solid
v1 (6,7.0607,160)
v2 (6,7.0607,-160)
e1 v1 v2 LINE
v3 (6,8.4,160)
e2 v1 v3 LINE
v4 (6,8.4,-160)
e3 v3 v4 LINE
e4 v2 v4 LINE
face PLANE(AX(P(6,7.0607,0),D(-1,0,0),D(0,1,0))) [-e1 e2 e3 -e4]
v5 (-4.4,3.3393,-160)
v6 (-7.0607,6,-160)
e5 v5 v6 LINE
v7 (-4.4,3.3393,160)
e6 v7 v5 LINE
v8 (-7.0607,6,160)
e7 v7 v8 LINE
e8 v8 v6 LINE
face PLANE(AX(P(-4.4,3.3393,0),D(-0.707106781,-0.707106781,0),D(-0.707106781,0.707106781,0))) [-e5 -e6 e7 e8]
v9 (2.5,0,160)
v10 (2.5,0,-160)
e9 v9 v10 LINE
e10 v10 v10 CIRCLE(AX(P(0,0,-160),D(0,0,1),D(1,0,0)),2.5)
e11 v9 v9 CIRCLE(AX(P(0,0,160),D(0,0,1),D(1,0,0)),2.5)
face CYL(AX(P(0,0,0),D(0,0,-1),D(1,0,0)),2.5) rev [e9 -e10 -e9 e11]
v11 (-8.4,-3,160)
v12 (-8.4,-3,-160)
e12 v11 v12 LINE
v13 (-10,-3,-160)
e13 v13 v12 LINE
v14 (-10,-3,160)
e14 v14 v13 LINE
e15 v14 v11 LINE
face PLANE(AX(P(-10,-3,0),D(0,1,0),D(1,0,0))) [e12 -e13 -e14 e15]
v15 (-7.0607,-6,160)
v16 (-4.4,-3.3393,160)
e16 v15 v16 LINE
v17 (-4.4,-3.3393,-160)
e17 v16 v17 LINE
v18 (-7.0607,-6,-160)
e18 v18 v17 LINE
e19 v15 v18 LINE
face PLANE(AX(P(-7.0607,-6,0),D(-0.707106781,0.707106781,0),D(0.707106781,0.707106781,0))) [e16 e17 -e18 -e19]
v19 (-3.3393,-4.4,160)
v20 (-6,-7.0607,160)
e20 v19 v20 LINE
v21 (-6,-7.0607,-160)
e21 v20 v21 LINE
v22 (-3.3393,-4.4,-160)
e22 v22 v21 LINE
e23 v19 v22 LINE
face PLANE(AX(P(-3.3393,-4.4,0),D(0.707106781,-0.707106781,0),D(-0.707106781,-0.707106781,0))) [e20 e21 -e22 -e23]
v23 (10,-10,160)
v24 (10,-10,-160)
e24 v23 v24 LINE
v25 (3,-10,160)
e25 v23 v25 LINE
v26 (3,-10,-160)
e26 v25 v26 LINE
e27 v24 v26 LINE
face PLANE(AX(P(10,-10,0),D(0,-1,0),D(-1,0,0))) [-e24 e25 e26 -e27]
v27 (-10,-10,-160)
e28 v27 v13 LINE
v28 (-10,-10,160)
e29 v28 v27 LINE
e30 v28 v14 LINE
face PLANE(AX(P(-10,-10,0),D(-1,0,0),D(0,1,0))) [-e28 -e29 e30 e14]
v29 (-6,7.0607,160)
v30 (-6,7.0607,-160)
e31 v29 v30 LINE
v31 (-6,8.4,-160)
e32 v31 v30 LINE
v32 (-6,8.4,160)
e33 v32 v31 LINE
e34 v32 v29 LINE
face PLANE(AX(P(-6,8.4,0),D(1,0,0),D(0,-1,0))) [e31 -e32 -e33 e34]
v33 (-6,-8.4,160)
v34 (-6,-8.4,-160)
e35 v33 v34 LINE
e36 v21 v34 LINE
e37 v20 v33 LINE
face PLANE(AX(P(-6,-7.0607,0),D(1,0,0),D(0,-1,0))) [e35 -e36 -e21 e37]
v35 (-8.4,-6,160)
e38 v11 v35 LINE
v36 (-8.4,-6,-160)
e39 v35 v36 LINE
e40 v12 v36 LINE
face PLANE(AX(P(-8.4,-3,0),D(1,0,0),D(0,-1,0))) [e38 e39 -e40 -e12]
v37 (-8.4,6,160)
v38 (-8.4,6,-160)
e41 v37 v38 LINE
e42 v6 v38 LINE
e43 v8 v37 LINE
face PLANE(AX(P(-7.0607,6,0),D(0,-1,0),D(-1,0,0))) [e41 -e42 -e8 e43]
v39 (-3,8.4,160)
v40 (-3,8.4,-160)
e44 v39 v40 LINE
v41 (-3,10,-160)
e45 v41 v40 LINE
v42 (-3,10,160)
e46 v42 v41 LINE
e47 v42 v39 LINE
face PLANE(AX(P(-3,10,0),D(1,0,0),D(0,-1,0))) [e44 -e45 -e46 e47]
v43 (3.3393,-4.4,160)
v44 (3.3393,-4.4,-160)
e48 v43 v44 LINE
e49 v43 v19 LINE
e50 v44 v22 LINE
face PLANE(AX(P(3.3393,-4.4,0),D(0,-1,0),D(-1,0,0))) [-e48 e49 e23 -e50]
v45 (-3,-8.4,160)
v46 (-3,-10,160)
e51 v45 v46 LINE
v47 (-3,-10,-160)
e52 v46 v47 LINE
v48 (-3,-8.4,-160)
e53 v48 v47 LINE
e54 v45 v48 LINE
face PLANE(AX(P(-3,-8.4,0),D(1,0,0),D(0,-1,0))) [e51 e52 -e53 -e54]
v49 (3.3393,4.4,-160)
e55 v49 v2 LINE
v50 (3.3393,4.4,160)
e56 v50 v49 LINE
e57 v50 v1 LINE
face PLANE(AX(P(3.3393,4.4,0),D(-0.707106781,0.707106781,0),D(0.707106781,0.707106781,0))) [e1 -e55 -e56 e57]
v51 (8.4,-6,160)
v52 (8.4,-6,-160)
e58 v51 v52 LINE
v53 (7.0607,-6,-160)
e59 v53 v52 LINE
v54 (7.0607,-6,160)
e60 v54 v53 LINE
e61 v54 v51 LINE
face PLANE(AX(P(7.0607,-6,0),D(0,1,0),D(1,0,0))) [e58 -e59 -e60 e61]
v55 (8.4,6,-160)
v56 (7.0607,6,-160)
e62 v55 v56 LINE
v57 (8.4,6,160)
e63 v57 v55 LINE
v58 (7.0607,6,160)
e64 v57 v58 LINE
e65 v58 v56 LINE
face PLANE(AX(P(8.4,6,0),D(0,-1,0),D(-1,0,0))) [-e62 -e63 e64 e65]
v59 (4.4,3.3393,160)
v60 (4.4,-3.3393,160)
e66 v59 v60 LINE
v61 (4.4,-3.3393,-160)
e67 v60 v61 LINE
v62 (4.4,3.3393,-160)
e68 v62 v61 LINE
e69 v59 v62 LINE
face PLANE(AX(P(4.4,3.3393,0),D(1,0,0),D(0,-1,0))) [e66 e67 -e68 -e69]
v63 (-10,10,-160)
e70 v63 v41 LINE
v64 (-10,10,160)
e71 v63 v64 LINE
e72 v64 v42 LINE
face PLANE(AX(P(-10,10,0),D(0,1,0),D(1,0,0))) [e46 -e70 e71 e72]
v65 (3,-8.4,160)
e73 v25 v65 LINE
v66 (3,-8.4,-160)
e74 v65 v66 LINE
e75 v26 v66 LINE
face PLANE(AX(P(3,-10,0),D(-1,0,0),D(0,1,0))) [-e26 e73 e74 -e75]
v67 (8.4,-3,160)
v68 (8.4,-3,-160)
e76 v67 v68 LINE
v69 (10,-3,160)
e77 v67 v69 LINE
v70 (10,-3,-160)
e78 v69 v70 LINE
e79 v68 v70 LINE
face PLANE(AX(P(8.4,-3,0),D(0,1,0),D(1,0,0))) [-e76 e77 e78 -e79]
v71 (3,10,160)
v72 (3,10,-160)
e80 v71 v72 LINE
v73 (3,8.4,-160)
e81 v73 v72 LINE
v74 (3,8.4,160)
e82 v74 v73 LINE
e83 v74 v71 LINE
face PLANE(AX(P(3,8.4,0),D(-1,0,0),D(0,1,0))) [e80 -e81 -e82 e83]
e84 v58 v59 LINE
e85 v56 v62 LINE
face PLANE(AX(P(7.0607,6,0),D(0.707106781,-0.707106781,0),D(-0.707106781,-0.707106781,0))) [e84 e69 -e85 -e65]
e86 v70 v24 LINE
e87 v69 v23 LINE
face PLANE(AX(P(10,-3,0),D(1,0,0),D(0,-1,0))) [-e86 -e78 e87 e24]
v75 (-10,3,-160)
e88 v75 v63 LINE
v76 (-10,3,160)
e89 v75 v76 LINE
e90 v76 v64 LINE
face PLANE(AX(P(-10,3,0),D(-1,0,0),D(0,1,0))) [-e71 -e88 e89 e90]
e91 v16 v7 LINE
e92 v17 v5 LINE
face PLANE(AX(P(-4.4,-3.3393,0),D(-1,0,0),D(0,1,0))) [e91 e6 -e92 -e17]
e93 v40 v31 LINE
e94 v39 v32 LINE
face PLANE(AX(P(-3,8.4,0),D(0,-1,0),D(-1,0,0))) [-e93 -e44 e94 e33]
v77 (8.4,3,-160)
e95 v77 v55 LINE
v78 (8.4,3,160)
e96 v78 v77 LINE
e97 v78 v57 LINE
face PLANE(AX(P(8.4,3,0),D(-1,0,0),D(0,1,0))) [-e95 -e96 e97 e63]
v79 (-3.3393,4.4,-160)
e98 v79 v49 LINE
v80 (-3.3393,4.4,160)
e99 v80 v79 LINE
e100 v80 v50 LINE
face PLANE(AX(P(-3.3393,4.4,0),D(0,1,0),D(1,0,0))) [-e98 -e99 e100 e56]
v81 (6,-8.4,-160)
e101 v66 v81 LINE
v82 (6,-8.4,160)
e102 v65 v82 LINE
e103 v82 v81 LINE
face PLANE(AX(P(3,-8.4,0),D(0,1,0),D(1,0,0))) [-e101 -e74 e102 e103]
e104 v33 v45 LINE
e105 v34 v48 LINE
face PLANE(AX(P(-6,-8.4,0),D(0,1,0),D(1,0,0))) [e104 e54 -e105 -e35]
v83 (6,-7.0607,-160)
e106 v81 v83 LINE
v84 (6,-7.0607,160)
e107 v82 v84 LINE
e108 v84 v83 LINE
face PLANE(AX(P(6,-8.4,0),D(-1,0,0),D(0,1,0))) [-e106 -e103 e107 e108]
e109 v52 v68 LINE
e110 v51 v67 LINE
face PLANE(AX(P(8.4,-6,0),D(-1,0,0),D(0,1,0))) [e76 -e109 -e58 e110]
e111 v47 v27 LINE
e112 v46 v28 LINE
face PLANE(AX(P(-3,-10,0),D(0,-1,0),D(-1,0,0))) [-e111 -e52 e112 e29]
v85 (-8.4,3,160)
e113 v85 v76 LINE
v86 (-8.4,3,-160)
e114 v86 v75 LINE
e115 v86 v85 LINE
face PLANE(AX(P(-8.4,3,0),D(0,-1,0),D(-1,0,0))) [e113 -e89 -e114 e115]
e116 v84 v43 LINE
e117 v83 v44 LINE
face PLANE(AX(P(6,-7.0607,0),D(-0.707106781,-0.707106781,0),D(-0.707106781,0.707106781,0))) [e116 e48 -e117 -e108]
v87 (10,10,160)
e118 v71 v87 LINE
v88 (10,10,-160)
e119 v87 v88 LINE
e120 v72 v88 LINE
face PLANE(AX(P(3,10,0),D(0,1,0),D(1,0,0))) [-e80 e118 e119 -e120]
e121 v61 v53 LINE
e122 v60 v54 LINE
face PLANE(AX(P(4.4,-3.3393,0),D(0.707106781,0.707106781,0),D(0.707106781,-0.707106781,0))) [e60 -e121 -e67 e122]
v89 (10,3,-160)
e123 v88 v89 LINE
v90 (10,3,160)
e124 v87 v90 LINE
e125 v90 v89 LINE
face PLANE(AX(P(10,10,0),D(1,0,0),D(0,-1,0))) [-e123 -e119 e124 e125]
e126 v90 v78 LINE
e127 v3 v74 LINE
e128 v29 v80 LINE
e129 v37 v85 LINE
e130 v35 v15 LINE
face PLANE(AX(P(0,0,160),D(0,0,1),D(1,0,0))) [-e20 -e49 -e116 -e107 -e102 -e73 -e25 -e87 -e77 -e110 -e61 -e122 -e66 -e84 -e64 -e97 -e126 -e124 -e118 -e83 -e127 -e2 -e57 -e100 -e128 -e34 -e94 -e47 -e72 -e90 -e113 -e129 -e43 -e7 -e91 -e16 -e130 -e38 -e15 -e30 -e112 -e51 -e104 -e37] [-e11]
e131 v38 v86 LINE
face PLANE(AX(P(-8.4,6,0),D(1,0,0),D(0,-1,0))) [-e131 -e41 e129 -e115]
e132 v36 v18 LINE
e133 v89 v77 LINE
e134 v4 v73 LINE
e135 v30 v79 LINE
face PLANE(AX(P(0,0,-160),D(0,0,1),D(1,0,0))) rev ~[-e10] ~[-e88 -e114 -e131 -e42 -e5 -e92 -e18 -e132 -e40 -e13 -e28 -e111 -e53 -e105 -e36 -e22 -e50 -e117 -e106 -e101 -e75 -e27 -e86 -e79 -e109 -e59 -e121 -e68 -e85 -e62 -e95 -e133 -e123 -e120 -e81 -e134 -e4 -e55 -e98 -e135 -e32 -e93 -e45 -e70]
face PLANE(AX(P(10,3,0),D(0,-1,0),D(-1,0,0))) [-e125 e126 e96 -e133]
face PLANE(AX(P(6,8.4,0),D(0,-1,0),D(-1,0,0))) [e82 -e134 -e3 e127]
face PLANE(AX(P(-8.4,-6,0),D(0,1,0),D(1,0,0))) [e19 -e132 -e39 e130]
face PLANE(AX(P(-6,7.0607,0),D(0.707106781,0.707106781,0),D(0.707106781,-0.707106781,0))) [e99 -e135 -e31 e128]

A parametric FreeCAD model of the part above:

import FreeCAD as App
import Part
import Sketcher
from FreeCAD import Vector

doc = App.newDocument("Part")
body = doc.addObject("PartDesign::Body", "Body")

sketch1 = body.newObject("Sketcher::SketchObject", "Sketch")
sketch1.AttachmentSupport = (doc.getObject("XY_Plane"), [""])
sketch1.MapMode = "FlatFace"
sketch1.addGeometry([
    Part.LineSegment(Vector(-3, 10, 0), Vector(-10, 10, 0)),
    Part.LineSegment(Vector(-10, 10, 0), Vector(-10, 3, 0)),
    Part.LineSegment(Vector(-10, 3, 0), Vector(-8.4, 3, 0)),
    Part.LineSegment(Vector(-8.4, 3, 0), Vector(-8.4, 6, 0)),
    Part.LineSegment(Vector(-8.4, 6, 0), Vector(-7.0607, 6, 0)),
    Part.LineSegment(Vector(-7.0607, 6, 0), Vector(-4.4, 3.3393, 0)),
    Part.LineSegment(Vector(-4.4, 3.3393, 0), Vector(-4.4, -3.3393, 0)),
    Part.LineSegment(Vector(-4.4, -3.3393, 0), Vector(-7.0607, -6, 0)),
    Part.LineSegment(Vector(-7.0607, -6, 0), Vector(-8.4, -6, 0)),
    Part.LineSegment(Vector(-8.4, -6, 0), Vector(-8.4, -3, 0)),
    Part.LineSegment(Vector(-8.4, -3, 0), Vector(-10, -3, 0)),
    Part.LineSegment(Vector(-10, -3, 0), Vector(-10, -10, 0)),
    Part.LineSegment(Vector(-10, -10, 0), Vector(-3, -10, 0)),
    Part.LineSegment(Vector(-3, -10, 0), Vector(-3, -8.4, 0)),
    Part.LineSegment(Vector(-3, -8.4, 0), Vector(-6, -8.4, 0)),
    Part.LineSegment(Vector(-6, -8.4, 0), Vector(-6, -7.0607, 0)),
    Part.LineSegment(Vector(-6, -7.0607, 0), Vector(-3.3393, -4.4, 0)),
    Part.LineSegment(Vector(-3.3393, -4.4, 0), Vector(3.3393, -4.4, 0)),
    Part.LineSegment(Vector(3.3393, -4.4, 0), Vector(6, -7.0607, 0)),
    Part.LineSegment(Vector(6, -7.0607, 0), Vector(6, -8.4, 0)),
    Part.LineSegment(Vector(6, -8.4, 0), Vector(3, -8.4, 0)),
    Part.LineSegment(Vector(3, -8.4, 0), Vector(3, -10, 0)),
    Part.LineSegment(Vector(3, -10, 0), Vector(10, -10, 0)),
    Part.LineSegment(Vector(10, -10, 0), Vector(10, -3, 0)),
    Part.LineSegment(Vector(10, -3, 0), Vector(8.4, -3, 0)),
    Part.LineSegment(Vector(8.4, -3, 0), Vector(8.4, -6, 0)),
    Part.LineSegment(Vector(8.4, -6, 0), Vector(7.0607, -6, 0)),
    Part.LineSegment(Vector(7.0607, -6, 0), Vector(4.4, -3.3393, 0)),
    Part.LineSegment(Vector(4.4, -3.3393, 0), Vector(4.4, 3.3393, 0)),
    Part.LineSegment(Vector(4.4, 3.3393, 0), Vector(7.0607, 6, 0)),
    Part.LineSegment(Vector(7.0607, 6, 0), Vector(8.4, 6, 0)),
    Part.LineSegment(Vector(8.4, 6, 0), Vector(8.4, 3, 0)),
    Part.LineSegment(Vector(8.4, 3, 0), Vector(10, 3, 0)),
    Part.LineSegment(Vector(10, 3, 0), Vector(10, 10, 0)),
    Part.LineSegment(Vector(10, 10, 0), Vector(3, 10, 0)),
    Part.LineSegment(Vector(3, 10, 0), Vector(3, 8.4, 0)),
    Part.LineSegment(Vector(3, 8.4, 0), Vector(6, 8.4, 0)),
    Part.LineSegment(Vector(6, 8.4, 0), Vector(6, 7.0607, 0)),
    Part.LineSegment(Vector(6, 7.0607, 0), Vector(3.3393, 4.4, 0)),
    Part.LineSegment(Vector(3.3393, 4.4, 0), Vector(-3.3393, 4.4, 0)),
    Part.LineSegment(Vector(-3.3393, 4.4, 0), Vector(-6, 7.0607, 0)),
    Part.LineSegment(Vector(-6, 7.0607, 0), Vector(-6, 8.4, 0)),
    Part.LineSegment(Vector(-6, 8.4, 0), Vector(-3, 8.4, 0)),
    Part.LineSegment(Vector(-3, 8.4, 0), Vector(-3, 10, 0)),
    Part.Circle(Vector(0, 0, 0), Vector(0, 0, 1), 2.5),
], False)
sketch1.addConstraint([
    Sketcher.Constraint("Coincident", 0, 2, 1, 1),
    Sketcher.Constraint("Coincident", 1, 2, 2, 1),
    Sketcher.Constraint("Coincident", 2, 2, 3, 1),
    Sketcher.Constraint("Coincident", 3, 2, 4, 1),
    Sketcher.Constraint("Coincident", 4, 2, 5, 1),
    Sketcher.Constraint("Coincident", 5, 2, 6, 1),
    Sketcher.Constraint("Coincident", 6, 2, 7, 1),
    Sketcher.Constraint("Coincident", 7, 2, 8, 1),
    Sketcher.Constraint("Coincident", 8, 2, 9, 1),
    Sketcher.Constraint("Coincident", 9, 2, 10, 1),
    Sketcher.Constraint("Coincident", 10, 2, 11, 1),
    Sketcher.Constraint("Coincident", 11, 2, 12, 1),
    Sketcher.Constraint("Coincident", 12, 2, 13, 1),
    Sketcher.Constraint("Coincident", 13, 2, 14, 1),
    Sketcher.Constraint("Coincident", 14, 2, 15, 1),
    Sketcher.Constraint("Coincident", 15, 2, 16, 1),
    Sketcher.Constraint("Coincident", 16, 2, 17, 1),
    Sketcher.Constraint("Coincident", 17, 2, 18, 1),
    Sketcher.Constraint("Coincident", 18, 2, 19, 1),
    Sketcher.Constraint("Coincident", 19, 2, 20, 1),
    Sketcher.Constraint("Coincident", 20, 2, 21, 1),
    Sketcher.Constraint("Coincident", 21, 2, 22, 1),
    Sketcher.Constraint("Coincident", 22, 2, 23, 1),
    Sketcher.Constraint("Coincident", 23, 2, 24, 1),
    Sketcher.Constraint("Coincident", 24, 2, 25, 1),
    Sketcher.Constraint("Coincident", 25, 2, 26, 1),
    Sketcher.Constraint("Coincident", 26, 2, 27, 1),
    Sketcher.Constraint("Coincident", 27, 2, 28, 1),
    Sketcher.Constraint("Coincident", 28, 2, 29, 1),
    Sketcher.Constraint("Coincident", 29, 2, 30, 1),
    Sketcher.Constraint("Coincident", 30, 2, 31, 1),
    Sketcher.Constraint("Coincident", 31, 2, 32, 1),
    Sketcher.Constraint("Coincident", 32, 2, 33, 1),
    Sketcher.Constraint("Coincident", 33, 2, 34, 1),
    Sketcher.Constraint("Coincident", 34, 2, 35, 1),
    Sketcher.Constraint("Coincident", 35, 2, 36, 1),
    Sketcher.Constraint("Coincident", 36, 2, 37, 1),
    Sketcher.Constraint("Coincident", 37, 2, 38, 1),
    Sketcher.Constraint("Coincident", 38, 2, 39, 1),
    Sketcher.Constraint("Coincident", 39, 2, 40, 1),
    Sketcher.Constraint("Coincident", 40, 2, 41, 1),
    Sketcher.Constraint("Coincident", 41, 2, 42, 1),
    Sketcher.Constraint("Coincident", 42, 2, 43, 1),
    Sketcher.Constraint("Coincident", 43, 2, 0, 1),
    Sketcher.Constraint("Horizontal", 0),
    Sketcher.Constraint("Vertical", 1),
    Sketcher.Constraint("Horizontal", 2),
    Sketcher.Constraint("Vertical", 3),
    Sketcher.Constraint("Horizontal", 4),
    Sketcher.Constraint("Vertical", 6),
    Sketcher.Constraint("Horizontal", 8),
    Sketcher.Constraint("Vertical", 9),
    Sketcher.Constraint("Horizontal", 10),
    Sketcher.Constraint("Vertical", 11),
    Sketcher.Constraint("Horizontal", 12),
    Sketcher.Constraint("Vertical", 13),
    Sketcher.Constraint("Horizontal", 14),
    Sketcher.Constraint("Vertical", 15),
    Sketcher.Constraint("Horizontal", 17),
    Sketcher.Constraint("Vertical", 19),
    Sketcher.Constraint("Horizontal", 20),
    Sketcher.Constraint("Vertical", 21),
    Sketcher.Constraint("Horizontal", 22),
    Sketcher.Constraint("Vertical", 23),
    Sketcher.Constraint("Horizontal", 24),
    Sketcher.Constraint("Vertical", 25),
    Sketcher.Constraint("Horizontal", 26),
    Sketcher.Constraint("Vertical", 28),
    Sketcher.Constraint("Horizontal", 30),
    Sketcher.Constraint("Vertical", 31),
    Sketcher.Constraint("Horizontal", 32),
    Sketcher.Constraint("Vertical", 33),
    Sketcher.Constraint("Horizontal", 34),
    Sketcher.Constraint("Vertical", 35),
    Sketcher.Constraint("Horizontal", 36),
    Sketcher.Constraint("Vertical", 37),
    Sketcher.Constraint("Horizontal", 39),
    Sketcher.Constraint("Vertical", 41),
    Sketcher.Constraint("Horizontal", 42),
    Sketcher.Constraint("Vertical", 43),
    Sketcher.Constraint("Coincident", 44, 3, -1, 1),
    Sketcher.Constraint("Symmetric", 0, 2, 22, 2, -1, 1),
    Sketcher.Constraint("Symmetric", 2, 2, 24, 2, -1, 1),
    Sketcher.Constraint("Symmetric", 4, 2, 26, 2, -1, 1),
    Sketcher.Constraint("Symmetric", 5, 2, 27, 2, -1, 1),
    Sketcher.Constraint("Symmetric", 7, 2, 29, 2, -1, 1),
    Sketcher.Constraint("Symmetric", 9, 2, 31, 2, -1, 1),
    Sketcher.Constraint("Symmetric", 11, 2, 33, 2, -1, 1),
    Sketcher.Constraint("Symmetric", 13, 2, 35, 2, -1, 1),
    Sketcher.Constraint("Symmetric", 15, 2, 37, 2, -1, 1),
    Sketcher.Constraint("Symmetric", 16, 2, 38, 2, -1, 1),
    Sketcher.Constraint("Symmetric", 18, 2, 40, 2, -1, 1),
    Sketcher.Constraint("Symmetric", 20, 2, 42, 2, -1, 1),
    Sketcher.Constraint("Symmetric", 15, 2, 18, 2, -2),
    Sketcher.Constraint("Symmetric", 13, 2, 20, 2, -2),
    Sketcher.Constraint("Symmetric", 11, 2, 22, 2, -2),
    Sketcher.Constraint("Symmetric", 9, 2, 24, 2, -2),
    Sketcher.Constraint("Symmetric", 7, 2, 26, 2, -2),
    Sketcher.Constraint("Perpendicular", 5, 7),
    Sketcher.Constraint("Parallel", 7, 16),
    Sketcher.Constraint("Perpendicular", 16, 18),
    Sketcher.Constraint("Perpendicular", 27, 29),
    Sketcher.Constraint("Perpendicular", 38, 40),
    Sketcher.Constraint("Horizontal", 6, 2, 27, 2),
    Sketcher.Constraint("Equal", 34, 1),
    Sketcher.Constraint("Equal", 42, 3),
    Sketcher.Constraint("Equal", 39, 6),
    Sketcher.Constraint("Equal", 32, 13),
    Sketcher.Constraint("Equal", 30, 15),
    Sketcher.Constraint("Equal", 7, 16),
    Sketcher.Constraint("Diameter", 44, 5.0),
    Sketcher.Constraint("DistanceX", 14, 2, 14, 1, 3.0),
    Sketcher.Constraint("DistanceX", 2, 1, 2, 2, 1.6),
    Sketcher.Constraint("DistanceY", -1, 1, 1, 2, 3.0),
    Sketcher.Constraint("DistanceY", 3, 2, 0, 2, 4.0),
    Sketcher.Constraint("DistanceX", 2, 2, 5, 2, 4.0),
    Sketcher.Constraint("DistanceX", 4, 1, 4, 2, 1.3393),
])
pad1 = body.newObject("PartDesign::Pad", "Pad")
pad1.Profile = sketch1
pad1.Length = 320
pad1.Midplane = True

doc.recompute()
